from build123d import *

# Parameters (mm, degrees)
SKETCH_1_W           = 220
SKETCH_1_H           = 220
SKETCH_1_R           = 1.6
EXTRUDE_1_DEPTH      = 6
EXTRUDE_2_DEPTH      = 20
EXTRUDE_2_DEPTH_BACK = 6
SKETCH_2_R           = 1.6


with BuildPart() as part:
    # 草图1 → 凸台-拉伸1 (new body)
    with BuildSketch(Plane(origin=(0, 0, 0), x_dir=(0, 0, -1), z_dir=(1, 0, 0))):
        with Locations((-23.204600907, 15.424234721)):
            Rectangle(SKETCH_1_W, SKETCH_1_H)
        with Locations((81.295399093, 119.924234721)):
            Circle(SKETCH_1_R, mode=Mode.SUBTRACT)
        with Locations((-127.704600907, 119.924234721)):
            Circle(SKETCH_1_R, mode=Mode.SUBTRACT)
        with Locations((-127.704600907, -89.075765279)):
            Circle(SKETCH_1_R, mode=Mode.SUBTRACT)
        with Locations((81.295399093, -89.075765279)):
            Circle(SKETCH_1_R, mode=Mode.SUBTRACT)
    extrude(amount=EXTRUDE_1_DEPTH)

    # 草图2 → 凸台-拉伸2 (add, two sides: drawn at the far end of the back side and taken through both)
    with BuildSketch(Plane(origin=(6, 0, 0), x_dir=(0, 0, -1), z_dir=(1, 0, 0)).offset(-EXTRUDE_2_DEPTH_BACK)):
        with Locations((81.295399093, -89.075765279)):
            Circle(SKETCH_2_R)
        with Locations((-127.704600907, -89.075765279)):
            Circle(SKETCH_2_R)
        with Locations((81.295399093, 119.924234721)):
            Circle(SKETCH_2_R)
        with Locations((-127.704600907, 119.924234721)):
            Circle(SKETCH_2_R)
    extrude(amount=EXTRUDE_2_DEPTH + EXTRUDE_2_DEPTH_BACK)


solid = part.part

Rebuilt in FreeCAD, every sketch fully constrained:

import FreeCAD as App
import Part
import Sketcher

V = App.Vector
Q = App.Units.Quantity

doc = App.newDocument("Part")
body = doc.addObject("PartDesign::Body", "Body")

sketch1 = body.newObject("Sketcher::SketchObject", "Sketch")
sketch1.AttachmentSupport = (doc.getObject("YZ_Plane"), [""])
sketch1.MapMode = "FlatFace"
sketch1.addGeometry(Part.LineSegment(V(125.4, 133.2, 0), V(-94.6, 133.2, 0)), False)
sketch1.addGeometry(Part.LineSegment(V(-94.6, 133.2, 0), V(-94.6, -86.8, 0)), False)
sketch1.addGeometry(Part.LineSegment(V(-94.6, -86.8, 0), V(125.4, -86.8, 0)), False)
sketch1.addGeometry(Part.LineSegment(V(125.4, -86.8, 0), V(125.4, 133.2, 0)), False)
sketch1.addGeometry(Part.Circle(V(-89.1, 127.7, 0), V(0, 0, 1), 1.6), False)
sketch1.addGeometry(Part.Circle(V(-89.1, -81.3, 0), V(0, 0, 1), 1.6), False)
sketch1.addGeometry(Part.Circle(V(119.9, 127.7, 0), V(0, 0, 1), 1.6), False)
sketch1.addGeometry(Part.Circle(V(119.9, -81.3, 0), V(0, 0, 1), 1.6), False)
sketch1.addConstraint(Sketcher.Constraint("Coincident", 0, 2, 1, 1))
sketch1.addConstraint(Sketcher.Constraint("Coincident", 1, 2, 2, 1))
sketch1.addConstraint(Sketcher.Constraint("Coincident", 2, 2, 3, 1))
sketch1.addConstraint(Sketcher.Constraint("Coincident", 3, 2, 0, 1))
sketch1.addConstraint(Sketcher.Constraint("Horizontal", 0))
sketch1.addConstraint(Sketcher.Constraint("Vertical", 1))
sketch1.addConstraint(Sketcher.Constraint("Horizontal", 2))
sketch1.addConstraint(Sketcher.Constraint("Vertical", 3))
sketch1.addConstraint(Sketcher.Constraint("Equal", 4, 5))
sketch1.addConstraint(Sketcher.Constraint("Equal", 5, 6))
sketch1.addConstraint(Sketcher.Constraint("Equal", 6, 7))
sketch1.addConstraint(Sketcher.Constraint("Horizontal", 4, 3, 6, 3))
sketch1.addConstraint(Sketcher.Constraint("Horizontal", 5, 3, 7, 3))
sketch1.addConstraint(Sketcher.Constraint("Vertical", 4, 3, 5, 3))
sketch1.addConstraint(Sketcher.Constraint("Vertical", 6, 3, 7, 3))
sketch1.addConstraint(Sketcher.Constraint("Equal", 2, 1))
sketch1.addConstraint(Sketcher.Constraint("Diameter", 4, Q("3.2 mm")))
sketch1.addConstraint(Sketcher.Constraint("DistanceX", 0, 2, 0, 1, Q("220 mm")))
sketch1.addConstraint(Sketcher.Constraint("DistanceY", 5, 3, 4, 3, Q("209 mm")))
sketch1.addConstraint(Sketcher.Constraint("DistanceX", 4, 3, 6, 3, Q("209 mm")))
sketch1.addConstraint(Sketcher.Constraint("DistanceX", 0, 2, 4, 3, Q("5.5 mm")))
sketch1.addConstraint(Sketcher.Constraint("DistanceY", 4, 3, 0, 2, Q("5.5 mm")))
sketch1.addConstraint(Sketcher.Constraint("DistanceY", -1, 1, 4, 3, Q("127.704601 mm")))
sketch1.addConstraint(Sketcher.Constraint("DistanceX", 4, 3, -1, 1, Q("89.075765 mm")))
pad1 = body.newObject("PartDesign::Pad", "Pad")
pad1.Profile = sketch1
pad1.Length = 6

sketch2 = body.newObject("Sketcher::SketchObject", "Sketch001")
sketch2.AttachmentSupport = (doc.getObject("YZ_Plane"), [""])
sketch2.MapMode = "FlatFace"
sketch2.AttachmentOffset = App.Placement(V(0, 0, 6), App.Rotation())
sketch2.addGeometry(Part.Circle(V(-89.1, -81.3, 0), V(0, 0, 1), 1.6), False)
sketch2.addGeometry(Part.Circle(V(-89.1, 127.7, 0), V(0, 0, 1), 1.6), False)
sketch2.addGeometry(Part.Circle(V(119.9, -81.3, 0), V(0, 0, 1), 1.6), False)
sketch2.addGeometry(Part.Circle(V(119.9, 127.7, 0), V(0, 0, 1), 1.6), False)
sketch2.addConstraint(Sketcher.Constraint("Equal", 0, 1))
sketch2.addConstraint(Sketcher.Constraint("Equal", 1, 2))
sketch2.addConstraint(Sketcher.Constraint("Equal", 2, 3))
sketch2.addConstraint(Sketcher.Constraint("Horizontal", 0, 3, 2, 3))
sketch2.addConstraint(Sketcher.Constraint("Horizontal", 1, 3, 3, 3))
sketch2.addConstraint(Sketcher.Constraint("Vertical", 0, 3, 1, 3))
sketch2.addConstraint(Sketcher.Constraint("Vertical", 2, 3, 3, 3))
sketch2.addConstraint(Sketcher.Constraint("Diameter", 0, Q("3.2 mm")))
sketch2.addConstraint(Sketcher.Constraint("DistanceY", 0, 3, 1, 3, Q("209 mm")))
sketch2.addConstraint(Sketcher.Constraint("DistanceX", 0, 3, 2, 3, Q("209 mm")))
sketch2.addConstraint(Sketcher.Constraint("DistanceY", 0, 3, -1, 1, Q("81.295399 mm")))
sketch2.addConstraint(Sketcher.Constraint("DistanceX", 0, 3, -1, 1, Q("89.075765 mm")))
pad2 = body.newObject("PartDesign::Pad", "Pad001")
pad2.Profile = sketch2
pad2.Type = "TwoLengths"
pad2.Length = 20
pad2.Length2 = 6

doc.recompute()
